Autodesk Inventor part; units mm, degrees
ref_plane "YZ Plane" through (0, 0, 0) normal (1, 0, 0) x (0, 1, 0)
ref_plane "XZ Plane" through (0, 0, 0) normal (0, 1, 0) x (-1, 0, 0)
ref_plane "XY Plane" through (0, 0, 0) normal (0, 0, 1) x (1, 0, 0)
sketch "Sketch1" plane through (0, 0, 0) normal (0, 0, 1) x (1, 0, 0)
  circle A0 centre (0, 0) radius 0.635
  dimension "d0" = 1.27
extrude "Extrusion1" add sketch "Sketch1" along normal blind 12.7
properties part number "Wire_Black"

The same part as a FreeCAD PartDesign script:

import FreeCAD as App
import Part
import Sketcher
from FreeCAD import Vector
Q = App.Units.Quantity

doc = App.newDocument("Part")
body = doc.addObject("PartDesign::Body", "Body")

sketch1 = body.newObject("Sketcher::SketchObject", "Sketch")
sketch1.AttachmentSupport = (doc.getObject("XY_Plane"), [""])
sketch1.MapMode = "FlatFace"
sketch1.addGeometry(Part.Circle(Vector(0, 0, 0), Vector(0, 0, 1), 0.6), False)
sketch1.addConstraint([
    Sketcher.Constraint("Coincident", 0, 3, -1, 1),
    Sketcher.Constraint("Diameter", 0, Q("0.05 in")),
])
pad1 = body.newObject("PartDesign::Pad", "Pad")
pad1.Profile = sketch1
pad1.Length = Q("0.5 in")

doc.recompute()
